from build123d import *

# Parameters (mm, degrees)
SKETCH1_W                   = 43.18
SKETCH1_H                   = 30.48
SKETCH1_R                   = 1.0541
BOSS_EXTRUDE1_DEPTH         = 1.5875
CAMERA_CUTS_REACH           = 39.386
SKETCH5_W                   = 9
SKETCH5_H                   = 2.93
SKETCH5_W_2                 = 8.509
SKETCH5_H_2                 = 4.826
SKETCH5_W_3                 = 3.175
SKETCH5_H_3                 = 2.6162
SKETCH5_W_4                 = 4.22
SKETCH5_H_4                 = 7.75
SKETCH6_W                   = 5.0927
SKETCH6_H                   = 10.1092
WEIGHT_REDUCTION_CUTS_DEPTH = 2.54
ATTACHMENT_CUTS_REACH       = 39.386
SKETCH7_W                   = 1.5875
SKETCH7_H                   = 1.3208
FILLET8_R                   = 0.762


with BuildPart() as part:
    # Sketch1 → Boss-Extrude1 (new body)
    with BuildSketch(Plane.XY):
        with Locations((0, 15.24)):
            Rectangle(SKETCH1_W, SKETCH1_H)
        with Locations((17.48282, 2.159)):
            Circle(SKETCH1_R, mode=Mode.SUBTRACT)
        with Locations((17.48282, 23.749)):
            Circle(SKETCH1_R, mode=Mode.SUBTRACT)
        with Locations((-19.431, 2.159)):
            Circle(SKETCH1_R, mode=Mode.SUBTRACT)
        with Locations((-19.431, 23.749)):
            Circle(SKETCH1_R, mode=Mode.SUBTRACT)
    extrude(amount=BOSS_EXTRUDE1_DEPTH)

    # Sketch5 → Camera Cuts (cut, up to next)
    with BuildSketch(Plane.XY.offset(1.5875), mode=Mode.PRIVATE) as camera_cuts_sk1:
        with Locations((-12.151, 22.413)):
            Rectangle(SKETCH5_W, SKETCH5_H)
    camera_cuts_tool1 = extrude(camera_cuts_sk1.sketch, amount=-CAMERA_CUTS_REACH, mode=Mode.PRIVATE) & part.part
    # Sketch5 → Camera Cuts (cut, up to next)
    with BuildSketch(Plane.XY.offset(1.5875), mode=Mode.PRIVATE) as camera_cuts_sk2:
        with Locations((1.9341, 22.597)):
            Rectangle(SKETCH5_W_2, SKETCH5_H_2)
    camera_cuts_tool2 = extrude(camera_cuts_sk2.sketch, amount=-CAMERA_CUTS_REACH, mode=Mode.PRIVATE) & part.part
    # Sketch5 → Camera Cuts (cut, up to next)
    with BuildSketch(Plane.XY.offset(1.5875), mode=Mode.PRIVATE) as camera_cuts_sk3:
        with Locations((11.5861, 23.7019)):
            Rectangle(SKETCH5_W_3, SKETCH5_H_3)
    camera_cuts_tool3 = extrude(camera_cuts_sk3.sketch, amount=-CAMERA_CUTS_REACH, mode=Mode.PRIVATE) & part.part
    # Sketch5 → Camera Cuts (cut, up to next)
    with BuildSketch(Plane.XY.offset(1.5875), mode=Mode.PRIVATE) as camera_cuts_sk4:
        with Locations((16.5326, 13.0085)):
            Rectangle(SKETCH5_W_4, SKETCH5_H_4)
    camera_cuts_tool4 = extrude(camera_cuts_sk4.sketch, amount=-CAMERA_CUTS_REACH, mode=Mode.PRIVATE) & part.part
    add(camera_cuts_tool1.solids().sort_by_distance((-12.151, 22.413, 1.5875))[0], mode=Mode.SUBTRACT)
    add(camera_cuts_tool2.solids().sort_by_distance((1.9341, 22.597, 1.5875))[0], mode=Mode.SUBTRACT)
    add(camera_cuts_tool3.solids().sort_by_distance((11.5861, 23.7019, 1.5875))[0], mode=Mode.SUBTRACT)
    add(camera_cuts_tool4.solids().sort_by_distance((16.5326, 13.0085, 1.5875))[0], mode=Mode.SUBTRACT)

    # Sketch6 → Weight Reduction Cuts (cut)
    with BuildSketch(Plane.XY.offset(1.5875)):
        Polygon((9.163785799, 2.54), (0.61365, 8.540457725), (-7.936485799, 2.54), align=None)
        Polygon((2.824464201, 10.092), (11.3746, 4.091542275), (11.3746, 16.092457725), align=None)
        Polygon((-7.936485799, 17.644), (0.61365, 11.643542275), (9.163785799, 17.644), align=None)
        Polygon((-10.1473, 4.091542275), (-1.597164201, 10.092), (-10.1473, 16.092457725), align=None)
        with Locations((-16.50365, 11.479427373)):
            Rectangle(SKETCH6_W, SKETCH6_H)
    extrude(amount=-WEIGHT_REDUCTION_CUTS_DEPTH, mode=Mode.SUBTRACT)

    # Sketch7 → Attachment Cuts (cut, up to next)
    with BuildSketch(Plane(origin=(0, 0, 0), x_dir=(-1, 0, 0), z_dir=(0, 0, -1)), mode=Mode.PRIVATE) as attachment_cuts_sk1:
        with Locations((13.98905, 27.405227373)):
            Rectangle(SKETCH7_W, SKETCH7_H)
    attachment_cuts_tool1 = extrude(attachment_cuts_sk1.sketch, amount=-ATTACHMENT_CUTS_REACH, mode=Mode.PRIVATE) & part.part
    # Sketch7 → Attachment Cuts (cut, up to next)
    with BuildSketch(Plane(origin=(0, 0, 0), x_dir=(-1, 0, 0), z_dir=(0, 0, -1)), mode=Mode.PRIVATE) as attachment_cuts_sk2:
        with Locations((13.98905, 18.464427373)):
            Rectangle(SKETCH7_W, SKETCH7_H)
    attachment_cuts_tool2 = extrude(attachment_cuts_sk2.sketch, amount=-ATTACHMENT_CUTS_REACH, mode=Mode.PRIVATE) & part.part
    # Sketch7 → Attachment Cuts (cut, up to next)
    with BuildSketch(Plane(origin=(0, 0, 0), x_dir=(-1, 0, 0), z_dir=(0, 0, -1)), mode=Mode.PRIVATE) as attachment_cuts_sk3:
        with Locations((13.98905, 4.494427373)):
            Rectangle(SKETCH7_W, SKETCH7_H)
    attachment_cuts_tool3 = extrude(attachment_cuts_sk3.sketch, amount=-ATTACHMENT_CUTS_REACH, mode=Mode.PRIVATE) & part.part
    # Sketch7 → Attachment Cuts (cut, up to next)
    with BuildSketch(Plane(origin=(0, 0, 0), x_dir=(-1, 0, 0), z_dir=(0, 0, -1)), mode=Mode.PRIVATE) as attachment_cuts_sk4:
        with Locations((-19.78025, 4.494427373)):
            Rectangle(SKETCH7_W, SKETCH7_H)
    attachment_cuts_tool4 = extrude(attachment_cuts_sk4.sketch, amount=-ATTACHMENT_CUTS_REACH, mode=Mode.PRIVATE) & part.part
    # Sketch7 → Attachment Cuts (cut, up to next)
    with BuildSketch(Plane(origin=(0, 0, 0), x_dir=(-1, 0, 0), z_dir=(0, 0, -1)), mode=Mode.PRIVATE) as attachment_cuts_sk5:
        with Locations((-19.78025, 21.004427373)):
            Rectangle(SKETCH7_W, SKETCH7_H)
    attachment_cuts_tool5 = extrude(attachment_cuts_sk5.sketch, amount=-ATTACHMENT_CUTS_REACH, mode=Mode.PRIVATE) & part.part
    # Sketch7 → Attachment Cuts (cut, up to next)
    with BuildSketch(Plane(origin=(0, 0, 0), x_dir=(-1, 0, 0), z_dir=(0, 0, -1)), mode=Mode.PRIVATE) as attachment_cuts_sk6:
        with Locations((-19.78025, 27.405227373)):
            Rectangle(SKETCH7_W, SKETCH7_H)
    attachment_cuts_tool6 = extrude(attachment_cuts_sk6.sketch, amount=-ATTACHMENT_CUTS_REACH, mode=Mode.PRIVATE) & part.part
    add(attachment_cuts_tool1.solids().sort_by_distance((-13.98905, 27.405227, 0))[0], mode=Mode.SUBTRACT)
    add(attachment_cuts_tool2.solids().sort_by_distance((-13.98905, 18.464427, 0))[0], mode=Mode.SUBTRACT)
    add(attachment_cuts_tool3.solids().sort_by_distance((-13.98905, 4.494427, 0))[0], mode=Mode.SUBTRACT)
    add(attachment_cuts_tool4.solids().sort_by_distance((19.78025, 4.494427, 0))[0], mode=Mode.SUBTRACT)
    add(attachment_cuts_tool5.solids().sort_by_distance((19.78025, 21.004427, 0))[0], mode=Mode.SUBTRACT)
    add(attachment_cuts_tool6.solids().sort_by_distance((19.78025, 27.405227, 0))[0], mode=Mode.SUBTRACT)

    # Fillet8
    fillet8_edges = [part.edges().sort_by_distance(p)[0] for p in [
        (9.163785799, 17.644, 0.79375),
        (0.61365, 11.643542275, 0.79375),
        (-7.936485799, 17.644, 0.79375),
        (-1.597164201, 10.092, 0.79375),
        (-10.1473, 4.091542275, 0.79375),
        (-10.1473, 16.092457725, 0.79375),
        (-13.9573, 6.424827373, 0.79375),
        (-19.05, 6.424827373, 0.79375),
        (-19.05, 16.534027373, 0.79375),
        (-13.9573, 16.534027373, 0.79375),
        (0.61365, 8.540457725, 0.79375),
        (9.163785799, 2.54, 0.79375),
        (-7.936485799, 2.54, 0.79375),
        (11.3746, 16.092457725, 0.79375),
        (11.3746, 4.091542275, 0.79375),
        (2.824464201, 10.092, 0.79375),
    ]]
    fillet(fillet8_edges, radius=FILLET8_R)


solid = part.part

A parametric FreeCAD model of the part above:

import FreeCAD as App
import Part
import Sketcher
Q = App.Units.Quantity


def edges_at(feature, points):
    """Names of the edges that pass closest to the given points."""
    edges = feature.Shape.Edges
    near = lambda p: min(range(len(edges)), key=lambda i: edges[i].distToShape(Part.Vertex(*p))[0])
    return sorted({f"Edge{near(p) + 1}" for p in points})


def add_polygon(sketch, points):
    """Adds a closed chain of lines whose ends are joined by coincident constraints."""
    first, n = sketch.GeometryCount, len(points)
    for a, b in zip(points, points[1:] + points[:1]):
        sketch.addGeometry(Part.LineSegment(App.Vector(*a, 0), App.Vector(*b, 0)), False)
    for i in range(n):
        sketch.addConstraint(Sketcher.Constraint("Coincident", first + i, 2, first + (i + 1) % n, 1))

doc = App.newDocument("Part")
body = doc.addObject("PartDesign::Body", "Body")

sketch1 = body.newObject("Sketcher::SketchObject", "Sketch")
sketch1.AttachmentSupport = (doc.getObject("XY_Plane"), [""])
sketch1.MapMode = "FlatFace"
add_polygon(sketch1, [(-21.6, 30.5), (-21.6, 0), (21.6, 0), (21.6, 30.5)])
sketch1.addGeometry(Part.Circle(App.Vector(-19.4, 2.2, 0), App.Vector(0, 0, 1), 1.1), False)
sketch1.addGeometry(Part.Circle(App.Vector(17.5, 2.2, 0), App.Vector(0, 0, 1), 1.1), False)
sketch1.addGeometry(Part.Circle(App.Vector(-19.4, 23.7, 0), App.Vector(0, 0, 1), 1.1), False)
sketch1.addGeometry(Part.Circle(App.Vector(17.5, 23.7, 0), App.Vector(0, 0, 1), 1.1), False)
sketch1.addConstraint(Sketcher.Constraint("Vertical", 0))
sketch1.addConstraint(Sketcher.Constraint("Horizontal", 1))
sketch1.addConstraint(Sketcher.Constraint("Vertical", 2))
sketch1.addConstraint(Sketcher.Constraint("Horizontal", 3))
sketch1.addConstraint(Sketcher.Constraint("Equal", 4, 5))
sketch1.addConstraint(Sketcher.Constraint("Equal", 5, 6))
sketch1.addConstraint(Sketcher.Constraint("Equal", 6, 7))
sketch1.addConstraint(Sketcher.Constraint("Symmetric", 0, 2, 1, 2, -1, 1))
sketch1.addConstraint(Sketcher.Constraint("Horizontal", 4, 3, 5, 3))
sketch1.addConstraint(Sketcher.Constraint("Horizontal", 6, 3, 7, 3))
sketch1.addConstraint(Sketcher.Constraint("Vertical", 4, 3, 6, 3))
sketch1.addConstraint(Sketcher.Constraint("Vertical", 5, 3, 7, 3))
sketch1.addConstraint(Sketcher.Constraint("Diameter", 4, Q("0.083 in")))
sketch1.addConstraint(Sketcher.Constraint("DistanceX", 1, 1, 1, 2, Q("1.7 in")))
sketch1.addConstraint(Sketcher.Constraint("DistanceY", 0, 2, 0, 1, Q("1.2 in")))
sketch1.addConstraint(Sketcher.Constraint("DistanceY", 4, 3, 6, 3, Q("0.85 in")))
sketch1.addConstraint(Sketcher.Constraint("DistanceX", 4, 3, -1, 1, Q("0.765 in")))
sketch1.addConstraint(Sketcher.Constraint("DistanceY", -1, 1, 4, 3, Q("0.085 in")))
sketch1.addConstraint(Sketcher.Constraint("DistanceX", -1, 1, 5, 3, Q("0.6883 in")))
pad1 = body.newObject("PartDesign::Pad", "Pad")
pad1.Profile = sketch1
pad1.Length = Q("0.0625 in")

sketch2 = body.newObject("Sketcher::SketchObject", "Sketch001")
sketch2.AttachmentSupport = (doc.getObject("XY_Plane"), [""])
sketch2.MapMode = "FlatFace"
sketch2.AttachmentOffset = App.Placement(App.Vector(0, 0, 0.0625 * 25.4), App.Rotation())
add_polygon(sketch2, [(-16.7, 23.9), (-16.7, 20.9), (-7.7, 20.9), (-7.7, 23.9)])
sketch2.addConstraint(Sketcher.Constraint("Vertical", 0))
sketch2.addConstraint(Sketcher.Constraint("Horizontal", 1))
sketch2.addConstraint(Sketcher.Constraint("Vertical", 2))
sketch2.addConstraint(Sketcher.Constraint("Horizontal", 3))
sketch2.addConstraint(Sketcher.Constraint("DistanceX", 1, 1, 1, 2, Q("9 mm")))
sketch2.addConstraint(Sketcher.Constraint("DistanceY", 0, 2, 0, 1, Q("2.93 mm")))
sketch2.addConstraint(Sketcher.Constraint("DistanceX", 0, 2, -1, 1, Q("16.651 mm")))
sketch2.addConstraint(Sketcher.Constraint("DistanceY", -1, 1, 0, 2, Q("20.948 mm")))
pocket1 = body.newObject("PartDesign::Pocket", "Pocket")
pocket1.Profile = sketch2
pocket1.Type = "UpToFirst"

sketch3 = body.newObject("Sketcher::SketchObject", "Sketch002")
sketch3.AttachmentSupport = (doc.getObject("XY_Plane"), [""])
sketch3.MapMode = "FlatFace"
sketch3.AttachmentOffset = App.Placement(App.Vector(0, 0, 0.0625 * 25.4), App.Rotation())
add_polygon(sketch3, [(-2.3, 25), (-2.3, 20.2), (6.2, 20.2), (6.2, 25)])
sketch3.addConstraint(Sketcher.Constraint("Vertical", 0))
sketch3.addConstraint(Sketcher.Constraint("Horizontal", 1))
sketch3.addConstraint(Sketcher.Constraint("Vertical", 2))
sketch3.addConstraint(Sketcher.Constraint("Horizontal", 3))
sketch3.addConstraint(Sketcher.Constraint("DistanceY", 0, 2, 0, 1, Q("0.19 in")))
sketch3.addConstraint(Sketcher.Constraint("DistanceX", 1, 1, 1, 2, Q("0.335 in")))
sketch3.addConstraint(Sketcher.Constraint("DistanceX", 0, 2, -1, 1, Q("2.3204 mm")))
sketch3.addConstraint(Sketcher.Constraint("DistanceY", -1, 1, 0, 2, Q("20.184 mm")))
pocket2 = body.newObject("PartDesign::Pocket", "Pocket001")
pocket2.Profile = sketch3
pocket2.Type = "UpToFirst"

sketch4 = body.newObject("Sketcher::SketchObject", "Sketch003")
sketch4.AttachmentSupport = (doc.getObject("XY_Plane"), [""])
sketch4.MapMode = "FlatFace"
sketch4.AttachmentOffset = App.Placement(App.Vector(0, 0, 0.0625 * 25.4), App.Rotation())
add_polygon(sketch4, [(10, 25), (10, 22.4), (13.2, 22.4), (13.2, 25)])
sketch4.addConstraint(Sketcher.Constraint("Vertical", 0))
sketch4.addConstraint(Sketcher.Constraint("Horizontal", 1))
sketch4.addConstraint(Sketcher.Constraint("Vertical", 2))
sketch4.addConstraint(Sketcher.Constraint("Horizontal", 3))
sketch4.addConstraint(Sketcher.Constraint("DistanceX", 1, 1, 1, 2, Q("0.125 in")))
sketch4.addConstraint(Sketcher.Constraint("DistanceY", 0, 2, 0, 1, Q("0.103 in")))
sketch4.addConstraint(Sketcher.Constraint("DistanceX", -1, 1, 0, 2, Q("9.9986 mm")))
sketch4.addConstraint(Sketcher.Constraint("DistanceY", -1, 1, 0, 2, Q("22.3938 mm")))
pocket3 = body.newObject("PartDesign::Pocket", "Pocket002")
pocket3.Profile = sketch4
pocket3.Type = "UpToFirst"

sketch5 = body.newObject("Sketcher::SketchObject", "Sketch004")
sketch5.AttachmentSupport = (doc.getObject("XY_Plane"), [""])
sketch5.MapMode = "FlatFace"
sketch5.AttachmentOffset = App.Placement(App.Vector(0, 0, 0.0625 * 25.4), App.Rotation())
add_polygon(sketch5, [(14.4, 16.9), (14.4, 9.1), (18.6, 9.1), (18.6, 16.9)])
sketch5.addConstraint(Sketcher.Constraint("Vertical", 0))
sketch5.addConstraint(Sketcher.Constraint("Horizontal", 1))
sketch5.addConstraint(Sketcher.Constraint("Vertical", 2))
sketch5.addConstraint(Sketcher.Constraint("Horizontal", 3))
sketch5.addConstraint(Sketcher.Constraint("DistanceX", 1, 1, 1, 2, Q("4.22 mm")))
sketch5.addConstraint(Sketcher.Constraint("DistanceY", 0, 2, 0, 1, Q("7.75 mm")))
sketch5.addConstraint(Sketcher.Constraint("DistanceX", -1, 1, 0, 2, Q("14.4226 mm")))
sketch5.addConstraint(Sketcher.Constraint("DistanceY", -1, 1, 0, 2, Q("9.1335 mm")))
pocket4 = body.newObject("PartDesign::Pocket", "Pocket003")
pocket4.Profile = sketch5
pocket4.Type = "UpToFirst"

sketch6 = body.newObject("Sketcher::SketchObject", "Sketch005")
sketch6.AttachmentSupport = (doc.getObject("XY_Plane"), [""])
sketch6.MapMode = "FlatFace"
sketch6.AttachmentOffset = App.Placement(App.Vector(0, 0, 0.0625 * 25.4), App.Rotation())
add_polygon(sketch6, [(9, 3), (1, 9), (-8, 3)])
add_polygon(sketch6, [(3, 10), (11, 4), (11, 16)])
add_polygon(sketch6, [(-8, 18), (1, 12), (9, 18)])
add_polygon(sketch6, [(-10, 4), (-2, 10), (-10, 16)])
add_polygon(sketch6, [(-19, 17), (-19, 6), (-14, 6), (-14, 17)])
sketch6.addConstraint(Sketcher.Constraint("Horizontal", 2))
sketch6.addConstraint(Sketcher.Constraint("Vertical", 4))
sketch6.addConstraint(Sketcher.Constraint("Horizontal", 8))
sketch6.addConstraint(Sketcher.Constraint("Vertical", 11))
sketch6.addConstraint(Sketcher.Constraint("Vertical", 12))
sketch6.addConstraint(Sketcher.Constraint("Horizontal", 13))
sketch6.addConstraint(Sketcher.Constraint("Vertical", 14))
sketch6.addConstraint(Sketcher.Constraint("Horizontal", 15))
sketch6.addConstraint(Sketcher.Constraint("Parallel", 0, 3))
sketch6.addConstraint(Sketcher.Constraint("Parallel", 1, 5))
sketch6.addConstraint(Sketcher.Constraint("Parallel", 3, 6))
sketch6.addConstraint(Sketcher.Constraint("Parallel", 5, 7))
sketch6.addConstraint(Sketcher.Constraint("Parallel", 7, 9))
sketch6.addConstraint(Sketcher.Constraint("Parallel", 6, 10))
sketch6.addConstraint(Sketcher.Constraint("Horizontal", 5, 2, 9, 2))
sketch6.addConstraint(Sketcher.Constraint("Horizontal", 4, 2, 10, 2))
sketch6.addConstraint(Sketcher.Constraint("Horizontal", 3, 2, 11, 2))
sketch6.addConstraint(Sketcher.Constraint("Vertical", 0, 2, 6, 2))
sketch6.addConstraint(Sketcher.Constraint("Vertical", 2, 2, 7, 2))
sketch6.addConstraint(Sketcher.Constraint("Equal", 1, 3))
sketch6.addConstraint(Sketcher.Constraint("DistanceY", -1, 1, 1, 2, Q("0.1 in")))
sketch6.addConstraint(Sketcher.Constraint("DistanceY", 12, 2, 12, 1, Q("0.398 in")))
sketch6.addConstraint(Sketcher.Constraint("DistanceX", 12, 2, -1, 1, Q("0.75 in")))
sketch6.addConstraint(Sketcher.Constraint("DistanceX", 13, 2, 11, 2, Q("0.15 in")))
sketch6.addConstraint(Sketcher.Constraint("DistanceX", 13, 1, 13, 2, Q("0.2005 in")))
sketch6.addConstraint(Sketcher.Constraint("DistanceX", 2, 1, 2, 2, Q("17.100272 mm")))
sketch6.addConstraint(Sketcher.Constraint("DistanceX", -1, 1, 3, 2, Q("11.3746 mm")))
sketch6.addConstraint(Sketcher.Constraint("DistanceY", -1, 1, 5, 2, Q("10.092 mm")))
sketch6.addConstraint(Sketcher.Constraint("DistanceY", -1, 1, 7, 2, Q("17.644 mm")))
sketch6.addConstraint(Sketcher.Constraint("Distance", 0, Q("10.445588 mm")))
sketch6.addConstraint(Sketcher.Constraint("DistanceX", -1, 1, 0, 2, Q("0.61365 mm")))
sketch6.addConstraint(Sketcher.Constraint("DistanceY", 12, 2, 10, 2, Q("9.66763 mm")))
pocket5 = body.newObject("PartDesign::Pocket", "Pocket004")
pocket5.Profile = sketch6
pocket5.Length = Q("0.1 in")

sketch7 = body.newObject("Sketcher::SketchObject", "Sketch006")
sketch7.AttachmentSupport = (doc.getObject("XY_Plane"), [""])
sketch7.MapMode = "FlatFace"
add_polygon(sketch7, [(-13.2, 28.1), (-13.2, 26.7), (-14.8, 26.7), (-14.8, 28.1)])
sketch7.addConstraint(Sketcher.Constraint("Vertical", 0))
sketch7.addConstraint(Sketcher.Constraint("Horizontal", 1))
sketch7.addConstraint(Sketcher.Constraint("Vertical", 2))
sketch7.addConstraint(Sketcher.Constraint("Horizontal", 3))
sketch7.addConstraint(Sketcher.Constraint("DistanceX", 1, 2, 1, 1, Q("0.0625 in")))
sketch7.addConstraint(Sketcher.Constraint("DistanceY", 0, 2, 0, 1, Q("0.052 in")))
sketch7.addConstraint(Sketcher.Constraint("DistanceX", 1, 2, -1, 1, Q("0.582 in")))
sketch7.addConstraint(Sketcher.Constraint("DistanceY", -1, 1, 0, 2, Q("26.744827 mm")))
pocket6 = body.newObject("PartDesign::Pocket", "Pocket005")
pocket6.Profile = sketch7
pocket6.Type = "UpToFirst"
pocket6.Reversed = True

sketch8 = body.newObject("Sketcher::SketchObject", "Sketch007")
sketch8.AttachmentSupport = (doc.getObject("XY_Plane"), [""])
sketch8.MapMode = "FlatFace"
add_polygon(sketch8, [(-13.2, 19.1), (-13.2, 17.8), (-14.8, 17.8), (-14.8, 19.1)])
sketch8.addConstraint(Sketcher.Constraint("Vertical", 0))
sketch8.addConstraint(Sketcher.Constraint("Horizontal", 1))
sketch8.addConstraint(Sketcher.Constraint("Vertical", 2))
sketch8.addConstraint(Sketcher.Constraint("Horizontal", 3))
sketch8.addConstraint(Sketcher.Constraint("DistanceX", 1, 2, 1, 1, Q("0.0625 in")))
sketch8.addConstraint(Sketcher.Constraint("DistanceY", 0, 2, 0, 1, Q("0.052 in")))
sketch8.addConstraint(Sketcher.Constraint("DistanceX", 1, 2, -1, 1, Q("0.582 in")))
sketch8.addConstraint(Sketcher.Constraint("DistanceY", -1, 1, 0, 2, Q("17.804027 mm")))
pocket7 = body.newObject("PartDesign::Pocket", "Pocket006")
pocket7.Profile = sketch8
pocket7.Type = "UpToFirst"
pocket7.Reversed = True

sketch9 = body.newObject("Sketcher::SketchObject", "Sketch008")
sketch9.AttachmentSupport = (doc.getObject("XY_Plane"), [""])
sketch9.MapMode = "FlatFace"
add_polygon(sketch9, [(-13.2, 5.2), (-13.2, 3.8), (-14.8, 3.8), (-14.8, 5.2)])
sketch9.addConstraint(Sketcher.Constraint("Vertical", 0))
sketch9.addConstraint(Sketcher.Constraint("Horizontal", 1))
sketch9.addConstraint(Sketcher.Constraint("Vertical", 2))
sketch9.addConstraint(Sketcher.Constraint("Horizontal", 3))
sketch9.addConstraint(Sketcher.Constraint("DistanceX", 1, 2, 1, 1, Q("0.0625 in")))
sketch9.addConstraint(Sketcher.Constraint("DistanceY", 0, 2, 0, 1, Q("0.052 in")))
sketch9.addConstraint(Sketcher.Constraint("DistanceX", 1, 2, -1, 1, Q("0.582 in")))
sketch9.addConstraint(Sketcher.Constraint("DistanceY", -1, 1, 0, 2, Q("3.834027 mm")))
pocket8 = body.newObject("PartDesign::Pocket", "Pocket007")
pocket8.Profile = sketch9
pocket8.Type = "UpToFirst"
pocket8.Reversed = True

sketch10 = body.newObject("Sketcher::SketchObject", "Sketch009")
sketch10.AttachmentSupport = (doc.getObject("XY_Plane"), [""])
sketch10.MapMode = "FlatFace"
add_polygon(sketch10, [(20.6, 5.2), (20.6, 3.8), (19, 3.8), (19, 5.2)])
sketch10.addConstraint(Sketcher.Constraint("Vertical", 0))
sketch10.addConstraint(Sketcher.Constraint("Horizontal", 1))
sketch10.addConstraint(Sketcher.Constraint("Vertical", 2))
sketch10.addConstraint(Sketcher.Constraint("Horizontal", 3))
sketch10.addConstraint(Sketcher.Constraint("DistanceX", 1, 2, 1, 1, Q("0.0625 in")))
sketch10.addConstraint(Sketcher.Constraint("DistanceY", 0, 2, 0, 1, Q("0.052 in")))
sketch10.addConstraint(Sketcher.Constraint("DistanceX", -1, 1, 0, 2, Q("0.81 in")))
sketch10.addConstraint(Sketcher.Constraint("DistanceY", -1, 1, 0, 2, Q("3.834027 mm")))
pocket9 = body.newObject("PartDesign::Pocket", "Pocket008")
pocket9.Profile = sketch10
pocket9.Type = "UpToFirst"
pocket9.Reversed = True

sketch11 = body.newObject("Sketcher::SketchObject", "Sketch010")
sketch11.AttachmentSupport = (doc.getObject("XY_Plane"), [""])
sketch11.MapMode = "FlatFace"
add_polygon(sketch11, [(20.6, 21.7), (20.6, 20.3), (19, 20.3), (19, 21.7)])
sketch11.addConstraint(Sketcher.Constraint("Vertical", 0))
sketch11.addConstraint(Sketcher.Constraint("Horizontal", 1))
sketch11.addConstraint(Sketcher.Constraint("Vertical", 2))
sketch11.addConstraint(Sketcher.Constraint("Horizontal", 3))
sketch11.addConstraint(Sketcher.Constraint("DistanceX", 1, 2, 1, 1, Q("0.0625 in")))
sketch11.addConstraint(Sketcher.Constraint("DistanceY", 0, 2, 0, 1, Q("0.052 in")))
sketch11.addConstraint(Sketcher.Constraint("DistanceX", -1, 1, 0, 2, Q("0.81 in")))
sketch11.addConstraint(Sketcher.Constraint("DistanceY", -1, 1, 0, 2, Q("20.344027 mm")))
pocket10 = body.newObject("PartDesign::Pocket", "Pocket009")
pocket10.Profile = sketch11
pocket10.Type = "UpToFirst"
pocket10.Reversed = True

sketch12 = body.newObject("Sketcher::SketchObject", "Sketch011")
sketch12.AttachmentSupport = (doc.getObject("XY_Plane"), [""])
sketch12.MapMode = "FlatFace"
add_polygon(sketch12, [(20.6, 28.1), (20.6, 26.7), (19, 26.7), (19, 28.1)])
sketch12.addConstraint(Sketcher.Constraint("Vertical", 0))
sketch12.addConstraint(Sketcher.Constraint("Horizontal", 1))
sketch12.addConstraint(Sketcher.Constraint("Vertical", 2))
sketch12.addConstraint(Sketcher.Constraint("Horizontal", 3))
sketch12.addConstraint(Sketcher.Constraint("DistanceX", 1, 2, 1, 1, Q("0.0625 in")))
sketch12.addConstraint(Sketcher.Constraint("DistanceY", 0, 2, 0, 1, Q("0.052 in")))
sketch12.addConstraint(Sketcher.Constraint("DistanceX", -1, 1, 0, 2, Q("0.81 in")))
sketch12.addConstraint(Sketcher.Constraint("DistanceY", -1, 1, 0, 2, Q("26.744827 mm")))
pocket11 = body.newObject("PartDesign::Pocket", "Pocket010")
pocket11.Profile = sketch12
pocket11.Type = "UpToFirst"
pocket11.Reversed = True
doc.recompute()

fillet = body.newObject("PartDesign::Fillet", "Fillet")
fillet.Base = (pocket11, edges_at(pocket11, [
    (9.164, 17.644, 0.794),
    (0.614, 11.644, 0.794),
    (-7.936, 17.644, 0.794),
    (-1.597, 10.092, 0.794),
    (-10.147, 4.092, 0.794),
    (-10.147, 16.092, 0.794),
    (-13.957, 6.425, 0.794),
    (-19.05, 6.425, 0.794),
    (-19.05, 16.534, 0.794),
    (-13.957, 16.534, 0.794),
    (0.614, 8.54, 0.794),
    (9.164, 2.54, 0.794),
    (-7.936, 2.54, 0.794),
    (11.375, 16.092, 0.794),
    (11.375, 4.092, 0.794),
    (2.824, 10.092, 0.794),
]))
fillet.Radius = Q("0.03 in")

doc.recompute()
